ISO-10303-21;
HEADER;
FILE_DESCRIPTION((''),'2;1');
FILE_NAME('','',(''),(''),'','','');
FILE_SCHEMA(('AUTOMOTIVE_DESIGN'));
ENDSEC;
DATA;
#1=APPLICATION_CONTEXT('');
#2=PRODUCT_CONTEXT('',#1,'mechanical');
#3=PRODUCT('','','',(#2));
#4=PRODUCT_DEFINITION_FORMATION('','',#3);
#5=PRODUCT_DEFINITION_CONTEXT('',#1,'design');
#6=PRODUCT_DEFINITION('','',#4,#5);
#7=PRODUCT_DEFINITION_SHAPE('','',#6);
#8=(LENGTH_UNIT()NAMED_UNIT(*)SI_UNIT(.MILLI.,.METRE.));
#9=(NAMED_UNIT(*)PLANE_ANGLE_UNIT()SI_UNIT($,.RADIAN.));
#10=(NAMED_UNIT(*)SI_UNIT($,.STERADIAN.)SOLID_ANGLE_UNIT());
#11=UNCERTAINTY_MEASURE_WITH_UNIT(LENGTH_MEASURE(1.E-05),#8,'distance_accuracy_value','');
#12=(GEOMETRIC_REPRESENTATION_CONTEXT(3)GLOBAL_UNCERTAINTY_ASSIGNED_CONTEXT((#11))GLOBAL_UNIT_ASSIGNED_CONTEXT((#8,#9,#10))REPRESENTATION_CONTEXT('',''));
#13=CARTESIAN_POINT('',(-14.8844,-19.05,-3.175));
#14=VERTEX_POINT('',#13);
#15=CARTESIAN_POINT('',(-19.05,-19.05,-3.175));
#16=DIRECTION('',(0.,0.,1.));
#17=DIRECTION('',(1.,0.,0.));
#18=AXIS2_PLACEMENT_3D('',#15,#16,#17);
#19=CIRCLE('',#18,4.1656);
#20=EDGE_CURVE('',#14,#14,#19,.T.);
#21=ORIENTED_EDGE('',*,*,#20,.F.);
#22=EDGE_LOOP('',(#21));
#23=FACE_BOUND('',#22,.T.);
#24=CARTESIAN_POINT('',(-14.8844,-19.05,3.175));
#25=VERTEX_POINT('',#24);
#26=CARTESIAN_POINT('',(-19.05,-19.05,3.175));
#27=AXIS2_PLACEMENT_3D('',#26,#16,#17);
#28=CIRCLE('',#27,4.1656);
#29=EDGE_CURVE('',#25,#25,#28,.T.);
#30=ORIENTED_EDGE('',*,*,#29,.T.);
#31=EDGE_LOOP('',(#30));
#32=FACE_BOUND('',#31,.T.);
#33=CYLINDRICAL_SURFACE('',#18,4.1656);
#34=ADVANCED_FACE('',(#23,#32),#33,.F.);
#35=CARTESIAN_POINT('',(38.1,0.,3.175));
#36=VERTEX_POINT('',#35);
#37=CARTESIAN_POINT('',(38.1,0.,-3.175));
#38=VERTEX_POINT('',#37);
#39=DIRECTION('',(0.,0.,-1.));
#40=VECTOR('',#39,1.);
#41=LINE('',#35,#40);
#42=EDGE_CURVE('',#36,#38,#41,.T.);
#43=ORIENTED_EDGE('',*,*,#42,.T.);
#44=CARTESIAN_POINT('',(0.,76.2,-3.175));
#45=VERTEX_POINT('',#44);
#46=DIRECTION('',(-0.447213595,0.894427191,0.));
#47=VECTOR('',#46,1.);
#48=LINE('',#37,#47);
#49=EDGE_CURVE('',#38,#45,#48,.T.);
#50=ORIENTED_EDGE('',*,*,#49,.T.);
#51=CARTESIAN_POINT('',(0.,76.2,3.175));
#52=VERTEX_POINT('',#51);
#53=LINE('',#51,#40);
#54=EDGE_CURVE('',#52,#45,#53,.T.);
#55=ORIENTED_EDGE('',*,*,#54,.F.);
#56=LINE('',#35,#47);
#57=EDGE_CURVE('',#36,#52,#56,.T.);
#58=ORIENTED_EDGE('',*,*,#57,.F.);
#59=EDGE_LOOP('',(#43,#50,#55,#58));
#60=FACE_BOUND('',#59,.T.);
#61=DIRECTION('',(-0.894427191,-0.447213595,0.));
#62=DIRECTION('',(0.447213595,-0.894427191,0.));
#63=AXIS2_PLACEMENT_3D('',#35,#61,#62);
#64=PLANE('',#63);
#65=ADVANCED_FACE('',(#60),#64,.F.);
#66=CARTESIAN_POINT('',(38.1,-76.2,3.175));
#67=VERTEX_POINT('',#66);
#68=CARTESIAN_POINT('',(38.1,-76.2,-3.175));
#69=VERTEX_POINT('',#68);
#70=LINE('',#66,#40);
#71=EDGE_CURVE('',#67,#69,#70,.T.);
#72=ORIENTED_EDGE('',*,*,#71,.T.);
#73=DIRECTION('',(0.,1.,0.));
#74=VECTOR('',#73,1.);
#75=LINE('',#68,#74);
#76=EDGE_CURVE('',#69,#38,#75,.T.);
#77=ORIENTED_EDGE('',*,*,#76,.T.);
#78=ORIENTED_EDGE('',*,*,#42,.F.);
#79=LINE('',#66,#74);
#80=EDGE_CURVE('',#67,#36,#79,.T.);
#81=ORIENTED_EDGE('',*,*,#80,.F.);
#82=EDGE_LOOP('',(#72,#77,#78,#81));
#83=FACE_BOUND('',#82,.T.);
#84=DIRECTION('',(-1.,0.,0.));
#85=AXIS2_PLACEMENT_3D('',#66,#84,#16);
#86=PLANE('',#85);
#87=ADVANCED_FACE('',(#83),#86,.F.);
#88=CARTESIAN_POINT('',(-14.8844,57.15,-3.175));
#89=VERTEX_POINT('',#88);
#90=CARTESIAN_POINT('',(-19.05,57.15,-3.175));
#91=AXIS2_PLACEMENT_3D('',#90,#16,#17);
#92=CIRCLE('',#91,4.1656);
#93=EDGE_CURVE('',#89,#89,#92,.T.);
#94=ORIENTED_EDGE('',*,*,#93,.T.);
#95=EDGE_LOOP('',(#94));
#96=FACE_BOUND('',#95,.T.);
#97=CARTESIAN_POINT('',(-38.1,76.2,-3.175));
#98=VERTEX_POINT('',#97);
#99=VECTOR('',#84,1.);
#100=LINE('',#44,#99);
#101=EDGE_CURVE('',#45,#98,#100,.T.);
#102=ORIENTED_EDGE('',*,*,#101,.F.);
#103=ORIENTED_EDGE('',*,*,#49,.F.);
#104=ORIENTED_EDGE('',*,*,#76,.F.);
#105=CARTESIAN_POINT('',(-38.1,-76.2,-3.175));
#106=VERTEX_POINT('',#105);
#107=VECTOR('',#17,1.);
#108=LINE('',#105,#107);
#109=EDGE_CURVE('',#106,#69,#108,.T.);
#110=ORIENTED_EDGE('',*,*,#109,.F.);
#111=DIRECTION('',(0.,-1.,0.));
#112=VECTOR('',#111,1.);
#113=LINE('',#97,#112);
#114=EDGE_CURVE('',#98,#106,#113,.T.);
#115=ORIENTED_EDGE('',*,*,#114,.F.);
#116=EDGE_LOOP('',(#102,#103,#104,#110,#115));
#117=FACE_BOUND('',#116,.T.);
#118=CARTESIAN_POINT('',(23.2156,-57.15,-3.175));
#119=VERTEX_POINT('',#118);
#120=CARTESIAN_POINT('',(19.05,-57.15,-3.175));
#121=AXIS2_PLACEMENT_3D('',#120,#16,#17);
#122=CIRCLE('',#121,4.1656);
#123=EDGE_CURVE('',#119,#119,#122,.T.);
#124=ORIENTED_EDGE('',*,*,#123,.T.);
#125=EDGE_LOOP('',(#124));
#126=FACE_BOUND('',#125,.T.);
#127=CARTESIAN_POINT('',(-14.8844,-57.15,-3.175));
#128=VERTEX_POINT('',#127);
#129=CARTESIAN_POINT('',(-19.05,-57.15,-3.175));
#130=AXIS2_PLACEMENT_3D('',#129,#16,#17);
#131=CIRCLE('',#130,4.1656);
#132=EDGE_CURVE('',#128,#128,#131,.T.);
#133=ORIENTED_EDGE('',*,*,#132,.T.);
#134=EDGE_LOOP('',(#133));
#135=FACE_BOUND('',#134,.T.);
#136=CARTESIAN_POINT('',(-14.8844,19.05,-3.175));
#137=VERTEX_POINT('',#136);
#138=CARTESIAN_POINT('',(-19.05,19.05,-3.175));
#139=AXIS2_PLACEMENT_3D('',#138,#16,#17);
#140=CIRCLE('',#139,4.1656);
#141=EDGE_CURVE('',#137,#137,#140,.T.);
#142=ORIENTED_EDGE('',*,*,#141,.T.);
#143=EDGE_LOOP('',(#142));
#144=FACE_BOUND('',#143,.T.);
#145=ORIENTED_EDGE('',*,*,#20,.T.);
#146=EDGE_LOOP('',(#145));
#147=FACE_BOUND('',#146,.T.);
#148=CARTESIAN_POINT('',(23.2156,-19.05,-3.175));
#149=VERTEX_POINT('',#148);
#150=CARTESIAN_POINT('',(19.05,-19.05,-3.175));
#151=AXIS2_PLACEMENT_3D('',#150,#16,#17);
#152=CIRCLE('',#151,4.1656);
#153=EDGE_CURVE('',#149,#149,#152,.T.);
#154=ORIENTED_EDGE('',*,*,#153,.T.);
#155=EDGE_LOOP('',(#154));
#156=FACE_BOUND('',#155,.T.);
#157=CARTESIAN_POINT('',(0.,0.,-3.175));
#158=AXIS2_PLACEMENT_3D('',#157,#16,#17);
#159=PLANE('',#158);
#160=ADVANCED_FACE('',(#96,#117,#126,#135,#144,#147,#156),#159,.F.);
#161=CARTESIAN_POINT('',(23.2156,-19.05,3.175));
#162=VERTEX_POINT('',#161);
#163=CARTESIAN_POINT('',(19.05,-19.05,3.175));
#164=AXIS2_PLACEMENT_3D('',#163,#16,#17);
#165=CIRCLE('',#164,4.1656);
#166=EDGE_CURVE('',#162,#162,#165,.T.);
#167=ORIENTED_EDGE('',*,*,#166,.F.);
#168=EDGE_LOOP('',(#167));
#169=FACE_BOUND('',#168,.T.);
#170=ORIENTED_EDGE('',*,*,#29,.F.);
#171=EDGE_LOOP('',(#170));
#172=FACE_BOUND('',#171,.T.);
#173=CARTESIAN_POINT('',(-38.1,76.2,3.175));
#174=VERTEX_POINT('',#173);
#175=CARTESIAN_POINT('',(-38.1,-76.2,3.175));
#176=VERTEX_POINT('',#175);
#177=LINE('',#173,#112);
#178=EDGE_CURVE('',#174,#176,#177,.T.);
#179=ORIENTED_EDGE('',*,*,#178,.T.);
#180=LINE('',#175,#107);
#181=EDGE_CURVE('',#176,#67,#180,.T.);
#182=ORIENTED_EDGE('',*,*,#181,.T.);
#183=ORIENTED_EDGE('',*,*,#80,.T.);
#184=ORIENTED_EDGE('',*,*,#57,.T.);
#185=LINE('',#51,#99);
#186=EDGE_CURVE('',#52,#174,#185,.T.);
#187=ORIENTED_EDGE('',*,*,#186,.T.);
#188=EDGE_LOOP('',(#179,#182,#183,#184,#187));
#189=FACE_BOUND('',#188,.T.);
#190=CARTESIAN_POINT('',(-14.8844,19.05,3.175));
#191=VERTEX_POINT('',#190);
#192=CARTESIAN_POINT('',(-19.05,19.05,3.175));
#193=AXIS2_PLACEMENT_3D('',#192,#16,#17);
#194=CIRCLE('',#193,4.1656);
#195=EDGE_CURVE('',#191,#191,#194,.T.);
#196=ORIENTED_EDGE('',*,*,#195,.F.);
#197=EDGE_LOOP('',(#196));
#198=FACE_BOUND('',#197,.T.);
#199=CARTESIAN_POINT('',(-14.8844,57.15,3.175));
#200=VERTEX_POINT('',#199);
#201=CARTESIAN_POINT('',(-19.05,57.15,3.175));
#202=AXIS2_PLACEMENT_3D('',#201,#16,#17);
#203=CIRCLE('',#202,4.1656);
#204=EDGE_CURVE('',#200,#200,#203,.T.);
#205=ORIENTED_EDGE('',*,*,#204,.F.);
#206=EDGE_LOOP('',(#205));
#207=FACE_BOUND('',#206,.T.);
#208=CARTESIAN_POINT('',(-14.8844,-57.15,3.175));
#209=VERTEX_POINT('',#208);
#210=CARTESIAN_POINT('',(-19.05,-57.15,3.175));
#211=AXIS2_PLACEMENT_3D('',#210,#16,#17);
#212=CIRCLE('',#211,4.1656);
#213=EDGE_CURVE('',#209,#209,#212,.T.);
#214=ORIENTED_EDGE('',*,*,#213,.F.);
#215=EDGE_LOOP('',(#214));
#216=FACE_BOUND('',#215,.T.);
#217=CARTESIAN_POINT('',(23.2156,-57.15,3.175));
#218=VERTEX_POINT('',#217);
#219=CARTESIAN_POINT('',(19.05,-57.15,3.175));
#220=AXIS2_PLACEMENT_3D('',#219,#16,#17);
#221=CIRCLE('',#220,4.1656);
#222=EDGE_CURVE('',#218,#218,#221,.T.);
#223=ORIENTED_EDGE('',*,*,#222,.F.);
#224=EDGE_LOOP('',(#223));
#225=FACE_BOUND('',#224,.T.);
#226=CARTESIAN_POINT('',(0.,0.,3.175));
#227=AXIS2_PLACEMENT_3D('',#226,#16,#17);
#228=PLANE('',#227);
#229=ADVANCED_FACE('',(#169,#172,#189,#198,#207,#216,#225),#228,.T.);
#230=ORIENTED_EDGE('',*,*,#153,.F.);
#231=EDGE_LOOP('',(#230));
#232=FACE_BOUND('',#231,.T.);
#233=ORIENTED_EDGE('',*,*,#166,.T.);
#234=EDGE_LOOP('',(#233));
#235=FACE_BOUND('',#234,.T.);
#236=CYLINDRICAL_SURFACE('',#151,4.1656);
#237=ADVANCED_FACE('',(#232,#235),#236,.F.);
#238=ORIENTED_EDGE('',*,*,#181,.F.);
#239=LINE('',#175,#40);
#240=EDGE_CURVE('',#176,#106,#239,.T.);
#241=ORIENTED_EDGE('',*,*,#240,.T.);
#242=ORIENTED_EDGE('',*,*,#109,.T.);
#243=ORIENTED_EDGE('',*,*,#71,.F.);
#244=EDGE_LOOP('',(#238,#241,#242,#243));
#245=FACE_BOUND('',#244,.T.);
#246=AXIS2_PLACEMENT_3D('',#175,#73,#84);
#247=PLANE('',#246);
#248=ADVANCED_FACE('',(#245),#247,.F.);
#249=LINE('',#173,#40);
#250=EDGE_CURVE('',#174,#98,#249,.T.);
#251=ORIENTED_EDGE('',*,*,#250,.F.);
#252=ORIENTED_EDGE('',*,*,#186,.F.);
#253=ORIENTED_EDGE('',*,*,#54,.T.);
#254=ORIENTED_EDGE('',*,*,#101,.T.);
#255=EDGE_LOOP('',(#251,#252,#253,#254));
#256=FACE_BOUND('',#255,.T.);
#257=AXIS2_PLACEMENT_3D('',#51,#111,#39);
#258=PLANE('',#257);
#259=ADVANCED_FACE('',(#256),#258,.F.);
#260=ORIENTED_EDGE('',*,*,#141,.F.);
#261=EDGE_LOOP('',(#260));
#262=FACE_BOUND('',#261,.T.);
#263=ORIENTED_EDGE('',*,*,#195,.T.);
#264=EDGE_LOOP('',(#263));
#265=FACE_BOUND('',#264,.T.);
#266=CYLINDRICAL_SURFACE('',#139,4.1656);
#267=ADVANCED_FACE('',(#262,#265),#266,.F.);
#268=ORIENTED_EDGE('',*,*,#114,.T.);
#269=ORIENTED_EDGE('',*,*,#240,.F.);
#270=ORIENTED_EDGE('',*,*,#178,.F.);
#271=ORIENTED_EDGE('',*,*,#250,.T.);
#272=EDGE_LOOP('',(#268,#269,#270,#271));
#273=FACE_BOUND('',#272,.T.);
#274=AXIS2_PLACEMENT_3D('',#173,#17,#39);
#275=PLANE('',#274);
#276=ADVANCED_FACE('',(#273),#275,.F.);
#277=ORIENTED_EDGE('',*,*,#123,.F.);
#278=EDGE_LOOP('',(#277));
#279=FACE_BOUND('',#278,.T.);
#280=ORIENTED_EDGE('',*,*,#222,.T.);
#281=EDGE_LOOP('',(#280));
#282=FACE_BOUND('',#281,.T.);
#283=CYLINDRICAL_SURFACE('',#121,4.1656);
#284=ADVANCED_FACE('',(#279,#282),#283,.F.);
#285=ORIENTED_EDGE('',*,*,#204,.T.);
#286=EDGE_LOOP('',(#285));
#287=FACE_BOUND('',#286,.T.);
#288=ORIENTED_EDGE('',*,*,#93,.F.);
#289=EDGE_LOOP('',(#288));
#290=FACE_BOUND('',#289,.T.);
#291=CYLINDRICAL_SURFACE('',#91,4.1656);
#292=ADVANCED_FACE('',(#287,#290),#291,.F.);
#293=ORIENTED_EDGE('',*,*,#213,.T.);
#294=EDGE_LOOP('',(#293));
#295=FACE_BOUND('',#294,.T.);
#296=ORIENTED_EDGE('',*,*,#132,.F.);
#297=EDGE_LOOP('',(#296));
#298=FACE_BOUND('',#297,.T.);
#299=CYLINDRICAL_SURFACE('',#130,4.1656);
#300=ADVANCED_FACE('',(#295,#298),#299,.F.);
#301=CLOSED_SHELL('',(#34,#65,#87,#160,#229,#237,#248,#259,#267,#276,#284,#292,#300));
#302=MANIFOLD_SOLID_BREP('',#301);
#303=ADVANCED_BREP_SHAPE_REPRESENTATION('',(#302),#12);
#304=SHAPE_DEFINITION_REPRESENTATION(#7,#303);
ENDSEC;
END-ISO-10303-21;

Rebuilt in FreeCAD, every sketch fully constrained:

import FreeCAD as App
import Part
import Sketcher

V = App.Vector
Q = App.Units.Quantity


def add_polygon(sketch, points):
    """Adds a closed chain of lines whose ends are joined by coincident constraints."""
    first, n = sketch.GeometryCount, len(points)
    for a, b in zip(points, points[1:] + points[:1]):
        sketch.addGeometry(Part.LineSegment(App.Vector(*a, 0), App.Vector(*b, 0)), False)
    for i in range(n):
        sketch.addConstraint(Sketcher.Constraint("Coincident", first + i, 2, first + (i + 1) % n, 1))

doc = App.newDocument("Part")
body = doc.addObject("PartDesign::Body", "Body")

sketch1 = doc.addObject("Sketcher::SketchObject", "Sketch")
body.addObject(sketch1)
sketch1.AttachmentSupport = (doc.XY_Plane, [""])
sketch1.MapMode = "FlatFace"
add_polygon(sketch1, [(0, 76), (-38, 76), (-38, -76), (38, -76), (38, 0)])
sketch1.addConstraint([
    Sketcher.Constraint("Horizontal", 0),
    Sketcher.Constraint("Vertical", 1),
    Sketcher.Constraint("Horizontal", 2),
    Sketcher.Constraint("Vertical", 3),
    Sketcher.Constraint("Symmetric", 0, 2, 2, 2, -1, 1),
    Sketcher.Constraint("PointOnObject", 3, 2, -1),
    Sketcher.Constraint("PointOnObject", 4, 2, -2),
    Sketcher.Constraint("Equal", 2, 3),
    Sketcher.Constraint("DistanceX", 2, 1, 2, 2, Q("3 in")),
])
pad1 = doc.addObject("PartDesign::Pad", "Pad")
body.addObject(pad1)
pad1.Profile = sketch1
pad1.Type = "TwoLengths"
pad1.Length = Q("0.125 in")
pad1.Length2 = Q("0.125 in")

sketch2 = doc.addObject("Sketcher::SketchObject", "Sketch001")
body.addObject(sketch2)
sketch2.AttachmentSupport = (doc.XY_Plane, [""])
sketch2.MapMode = "FlatFace"
sketch2.AttachmentOffset = App.Placement(V(0, 0, 0.125 * 25.4), App.Rotation())
sketch2.addGeometry([
    Part.Circle(V(-19.1, -57.1, 0), V(0, 0, 1), 4.2),
    Part.Circle(V(19.1, -57.1, 0), V(0, 0, 1), 4.2),
    Part.Circle(V(19.1, -19.1, 0), V(0, 0, 1), 4.2),
    Part.Circle(V(-19.1, -19.1, 0), V(0, 0, 1), 4.2),
    Part.Circle(V(-19.1, 19.1, 0), V(0, 0, 1), 4.2),
    Part.Circle(V(-19.1, 57.1, 0), V(0, 0, 1), 4.2),
], False)
sketch2.addConstraint([
    Sketcher.Constraint("Equal", 0, 1),
    Sketcher.Constraint("Equal", 1, 2),
    Sketcher.Constraint("Equal", 2, 3),
    Sketcher.Constraint("Equal", 3, 4),
    Sketcher.Constraint("Equal", 4, 5),
    Sketcher.Constraint("Symmetric", 2, 3, 4, 3, -1, 1),
    Sketcher.Constraint("Symmetric", 1, 3, 5, 3, -1, 1),
    Sketcher.Constraint("Symmetric", 0, 3, 1, 3, -2),
    Sketcher.Constraint("Symmetric", 2, 3, 3, 3, -2),
    Sketcher.Constraint("Vertical", 1, 3, 2, 3),
    Sketcher.Constraint("Diameter", 0, Q("0.328 in")),
    Sketcher.Constraint("DistanceY", 0, 3, 4, 3, Q("3 in")),
    Sketcher.Constraint("DistanceX", 0, 3, 1, 3, Q("1.5 in")),
    Sketcher.Constraint("DistanceY", 1, 3, 2, 3, Q("1.5 in")),
])
pocket1 = doc.addObject("PartDesign::Pocket", "Pocket")
body.addObject(pocket1)
pocket1.Profile = sketch2
pocket1.Type = "ThroughAll"

doc.recompute()
